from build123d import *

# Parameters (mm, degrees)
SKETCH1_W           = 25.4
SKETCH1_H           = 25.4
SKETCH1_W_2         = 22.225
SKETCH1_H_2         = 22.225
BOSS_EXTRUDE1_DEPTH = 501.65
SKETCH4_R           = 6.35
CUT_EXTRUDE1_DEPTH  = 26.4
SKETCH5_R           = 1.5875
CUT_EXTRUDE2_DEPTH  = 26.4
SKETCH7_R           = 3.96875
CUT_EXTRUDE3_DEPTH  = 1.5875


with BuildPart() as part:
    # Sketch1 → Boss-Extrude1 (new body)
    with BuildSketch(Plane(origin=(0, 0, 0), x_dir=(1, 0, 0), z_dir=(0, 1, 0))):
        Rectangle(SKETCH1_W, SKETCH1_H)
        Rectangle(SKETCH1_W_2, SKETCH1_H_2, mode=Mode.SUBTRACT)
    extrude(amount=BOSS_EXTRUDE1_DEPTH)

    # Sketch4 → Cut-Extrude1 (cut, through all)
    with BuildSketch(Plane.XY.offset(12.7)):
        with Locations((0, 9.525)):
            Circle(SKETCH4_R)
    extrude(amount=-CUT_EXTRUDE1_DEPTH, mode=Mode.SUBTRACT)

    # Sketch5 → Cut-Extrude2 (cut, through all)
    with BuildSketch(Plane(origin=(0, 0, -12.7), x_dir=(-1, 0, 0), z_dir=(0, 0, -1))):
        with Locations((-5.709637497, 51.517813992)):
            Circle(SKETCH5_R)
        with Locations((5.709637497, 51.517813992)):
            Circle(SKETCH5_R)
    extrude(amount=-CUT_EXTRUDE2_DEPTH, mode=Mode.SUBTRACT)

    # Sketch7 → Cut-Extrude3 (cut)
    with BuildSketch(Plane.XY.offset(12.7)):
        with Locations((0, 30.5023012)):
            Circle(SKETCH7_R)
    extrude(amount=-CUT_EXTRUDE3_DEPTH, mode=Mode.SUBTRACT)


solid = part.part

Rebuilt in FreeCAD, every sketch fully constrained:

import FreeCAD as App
import Part
import Sketcher
from FreeCAD import Vector
Q = App.Units.Quantity

doc = App.newDocument("Part")
body = doc.addObject("PartDesign::Body", "Body")

# Sketch on XZ plane
sketch1 = doc.addObject("Sketcher::SketchObject", "Sketch")
body.addObject(sketch1)
sketch1.AttachmentSupport = (doc.XZ_Plane, [""])
sketch1.MapMode = "FlatFace"
sketch1.addGeometry([
    Part.LineSegment(Vector(-12.7, -12.7, 0), Vector(-12.7, 12.7, 0)),  # 0
    Part.LineSegment(Vector(-12.7, 12.7, 0), Vector(12.7, 12.7, 0)),  # 1
    Part.LineSegment(Vector(12.7, 12.7, 0), Vector(12.7, -12.7, 0)),  # 2
    Part.LineSegment(Vector(12.7, -12.7, 0), Vector(-12.7, -12.7, 0)),  # 3
    Part.LineSegment(Vector(11.1125, 11.1125, 0), Vector(-11.1125, 11.1125, 0)),  # 4
    Part.LineSegment(Vector(-11.1125, 11.1125, 0), Vector(-11.1125, -11.1125, 0)),  # 5
    Part.LineSegment(Vector(-11.1125, -11.1125, 0), Vector(11.1125, -11.1125, 0)),  # 6
    Part.LineSegment(Vector(11.1125, -11.1125, 0), Vector(11.1125, 11.1125, 0)),  # 7
], False)
sketch1.addConstraint([
    Sketcher.Constraint("Coincident", 0, 2, 1, 1),
    Sketcher.Constraint("Coincident", 1, 2, 2, 1),
    Sketcher.Constraint("Coincident", 2, 2, 3, 1),
    Sketcher.Constraint("Coincident", 3, 2, 0, 1),
    Sketcher.Constraint("Coincident", 4, 2, 5, 1),
    Sketcher.Constraint("Coincident", 5, 2, 6, 1),
    Sketcher.Constraint("Coincident", 6, 2, 7, 1),
    Sketcher.Constraint("Coincident", 7, 2, 4, 1),
    Sketcher.Constraint("Vertical", 0),
    Sketcher.Constraint("Horizontal", 1),
    Sketcher.Constraint("Vertical", 2),
    Sketcher.Constraint("Horizontal", 3),
    Sketcher.Constraint("Horizontal", 4),
    Sketcher.Constraint("Vertical", 5),
    Sketcher.Constraint("Horizontal", 6),
    Sketcher.Constraint("Vertical", 7),
    Sketcher.Constraint("Symmetric", 0, 2, 2, 2, -1, 1),
    Sketcher.Constraint("Symmetric", 4, 2, 6, 2, -1, 1),
    Sketcher.Constraint("Equal", 3, 0),
    Sketcher.Constraint("Equal", 6, 5),
    Sketcher.Constraint("DistanceX", 1, 1, 1, 2, Q("1 in")),
    Sketcher.Constraint("DistanceX", 4, 2, 4, 1, Q("0.875 in")),
])
pad1 = doc.addObject("PartDesign::Pad", "Pad")
body.addObject(pad1)
pad1.Profile = sketch1
pad1.Length = Q("19.75 in")
pad1.Reversed = True

# Sketch on XY plane
sketch2 = doc.addObject("Sketcher::SketchObject", "Sketch001")
body.addObject(sketch2)
sketch2.AttachmentSupport = (doc.XY_Plane, [""])
sketch2.MapMode = "FlatFace"
sketch2.AttachmentOffset = App.Placement(Vector(0, 0, 0.5 * 25.4), App.Rotation())
sketch2.addGeometry(Part.Circle(Vector(0, 9.525, 0), Vector(0, 0, 1), 6.35), False)
sketch2.addConstraint([
    Sketcher.Constraint("PointOnObject", 0, 3, -2),
    Sketcher.Constraint("Diameter", 0, Q("0.5 in")),
    Sketcher.Constraint("DistanceY", -1, 1, 0, 3, Q("0.375 in")),
])
pocket1 = doc.addObject("PartDesign::Pocket", "Pocket")
body.addObject(pocket1)
pocket1.Profile = sketch2
pocket1.Type = "ThroughAll"

# Sketch on XY plane
sketch3 = doc.addObject("Sketcher::SketchObject", "Sketch002")
body.addObject(sketch3)
sketch3.AttachmentSupport = (doc.XY_Plane, [""])
sketch3.MapMode = "FlatFace"
sketch3.AttachmentOffset = App.Placement(Vector(0, 0, -0.5 * 25.4), App.Rotation())
sketch3.addGeometry([
    Part.Circle(Vector(5.709637, 51.517814, 0), Vector(0, 0, 1), 1.5875),
    Part.Circle(Vector(-5.709637, 51.517814, 0), Vector(0, 0, 1), 1.5875),
], False)
sketch3.addConstraint([
    Sketcher.Constraint("Equal", 0, 1),
    Sketcher.Constraint("Symmetric", 0, 3, 1, 3, -2),
    Sketcher.Constraint("Diameter", 0, Q("0.125 in")),
    Sketcher.Constraint("DistanceX", -1, 1, 0, 3, Q("5.709637 mm")),
    Sketcher.Constraint("DistanceY", -1, 1, 0, 3, Q("51.517814 mm")),
])
pocket2 = doc.addObject("PartDesign::Pocket", "Pocket001")
body.addObject(pocket2)
pocket2.Profile = sketch3
pocket2.Type = "ThroughAll"
pocket2.Reversed = True

# Sketch on XY plane
sketch4 = doc.addObject("Sketcher::SketchObject", "Sketch003")
body.addObject(sketch4)
sketch4.AttachmentSupport = (doc.XY_Plane, [""])
sketch4.MapMode = "FlatFace"
sketch4.AttachmentOffset = App.Placement(Vector(0, 0, 0.5 * 25.4), App.Rotation())
sketch4.addGeometry(Part.Circle(Vector(0, 30.502301, 0), Vector(0, 0, 1), 3.96875), False)
sketch4.addConstraint([
    Sketcher.Constraint("PointOnObject", 0, 3, -2),
    Sketcher.Constraint("Diameter", 0, Q("0.3125 in")),
    Sketcher.Constraint("DistanceY", -1, 1, 0, 3, Q("30.502301 mm")),
])
pocket3 = doc.addObject("PartDesign::Pocket", "Pocket002")
body.addObject(pocket3)
pocket3.Profile = sketch4
pocket3.Length = Q("0.0625 in")

doc.recompute()
